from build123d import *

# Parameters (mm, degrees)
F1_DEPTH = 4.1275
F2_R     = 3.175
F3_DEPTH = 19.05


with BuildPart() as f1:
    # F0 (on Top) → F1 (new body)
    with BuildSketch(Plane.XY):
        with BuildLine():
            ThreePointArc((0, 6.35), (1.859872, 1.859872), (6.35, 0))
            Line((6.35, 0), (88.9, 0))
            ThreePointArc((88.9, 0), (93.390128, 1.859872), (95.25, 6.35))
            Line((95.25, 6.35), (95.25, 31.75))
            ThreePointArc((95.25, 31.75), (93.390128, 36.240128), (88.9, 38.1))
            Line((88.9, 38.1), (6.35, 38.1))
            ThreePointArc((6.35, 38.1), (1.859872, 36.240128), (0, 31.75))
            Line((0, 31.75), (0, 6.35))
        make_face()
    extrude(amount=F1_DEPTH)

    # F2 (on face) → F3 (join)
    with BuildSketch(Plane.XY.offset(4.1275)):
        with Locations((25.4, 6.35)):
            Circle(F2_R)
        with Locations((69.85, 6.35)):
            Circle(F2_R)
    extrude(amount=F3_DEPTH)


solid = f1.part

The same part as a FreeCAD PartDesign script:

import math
import FreeCAD as App
import Part
import Sketcher

V = App.Vector
Q = App.Units.Quantity

doc = App.newDocument("Part")
params = doc.addObject("Spreadsheet::Sheet", "Params")
for row, (alias, value) in enumerate([
    ("sketch1_height", "1 in"),
    ("sketch1_radius", "0.25 in"),
    ("sketch1_width", "3.25 in"),
    ("pad1_length", "0.1625 in"),
    ("sketch2_diameter", "0.25 in"),
    ("pad2_length", "0.75 in"),
], start=1):
    params.set(f"A{row}", alias)
    params.set(f"B{row}", "=" + value)
    params.setAlias(f"B{row}", alias)

body = doc.addObject("PartDesign::Body", "Body")

# Sketch on XY plane
sketch1 = body.newObject("Sketcher::SketchObject", "Sketch")
sketch1.AttachmentSupport = (doc.getObject("XY_Plane"), [""])
sketch1.MapMode = "FlatFace"
sketch1.addGeometry(Part.ArcOfCircle(Part.Circle(V(6, 6, 0), V(0, 0, 1), 6), math.radians(-180), math.radians(-90)), False)
sketch1.addGeometry(Part.LineSegment(V(6, 0, 0), V(89, 0, 0)), False)
sketch1.addGeometry(Part.ArcOfCircle(Part.Circle(V(89, 6, 0), V(0, 0, 1), 6), math.radians(-90), math.radians(0)), False)
sketch1.addGeometry(Part.LineSegment(V(95, 6, 0), V(95, 32, 0)), False)
sketch1.addGeometry(Part.ArcOfCircle(Part.Circle(V(89, 32, 0), V(0, 0, 1), 6), math.radians(0), math.radians(90)), False)
sketch1.addGeometry(Part.LineSegment(V(89, 38, 0), V(6, 38, 0)), False)
sketch1.addGeometry(Part.ArcOfCircle(Part.Circle(V(6, 32, 0), V(0, 0, 1), 6), math.radians(90), math.radians(180)), False)
sketch1.addGeometry(Part.LineSegment(V(0, 32, 0), V(0, 6, 0)), False)
sketch1.addConstraint(Sketcher.Constraint("Tangent", 0, 2, 1, 1))
sketch1.addConstraint(Sketcher.Constraint("Tangent", 1, 2, 2, 1))
sketch1.addConstraint(Sketcher.Constraint("Tangent", 2, 2, 3, 1))
sketch1.addConstraint(Sketcher.Constraint("Tangent", 3, 2, 4, 1))
sketch1.addConstraint(Sketcher.Constraint("Tangent", 4, 2, 5, 1))
sketch1.addConstraint(Sketcher.Constraint("Tangent", 5, 2, 6, 1))
sketch1.addConstraint(Sketcher.Constraint("Tangent", 6, 2, 7, 1))
sketch1.addConstraint(Sketcher.Constraint("Tangent", 7, 2, 0, 1))
sketch1.addConstraint(Sketcher.Constraint("Horizontal", 1))
sketch1.addConstraint(Sketcher.Constraint("Vertical", 3))
sketch1.addConstraint(Sketcher.Constraint("Horizontal", 5))
sketch1.addConstraint(Sketcher.Constraint("Vertical", 7))
sketch1.addConstraint(Sketcher.Constraint("Equal", 0, 2))
sketch1.addConstraint(Sketcher.Constraint("Equal", 2, 4))
sketch1.addConstraint(Sketcher.Constraint("Equal", 4, 6))
sketch1.addConstraint(Sketcher.Constraint("PointOnObject", 0, 2, -1))
sketch1.addConstraint(Sketcher.Constraint("PointOnObject", 6, 2, -2))
sketch1.addConstraint(Sketcher.Constraint("DistanceY", 3, 1, 3, 2, Q("1 in")))
sketch1.addConstraint(Sketcher.Constraint("Radius", 0, Q("0.25 in")))
sketch1.addConstraint(Sketcher.Constraint("DistanceX", 1, 1, 1, 2, Q("3.25 in")))
sketch1.setExpression("Constraints[17]", "Params.sketch1_height")
sketch1.setExpression("Constraints[18]", "Params.sketch1_radius")
sketch1.setExpression("Constraints[19]", "Params.sketch1_width")
pad1 = body.newObject("PartDesign::Pad", "Pad")
pad1.Profile = sketch1
pad1.setExpression("Length", "Params.pad1_length")

# Sketch on XY plane
sketch2 = body.newObject("Sketcher::SketchObject", "Sketch001")
sketch2.AttachmentSupport = (doc.getObject("XY_Plane"), [""])
sketch2.MapMode = "FlatFace"
sketch2.AttachmentOffset = App.Placement(V(0, 0, 0.1625 * 25.4), App.Rotation())
sketch2.addGeometry(Part.Circle(V(25.4, 6.3, 0), V(0, 0, 1), 3.2), False)
sketch2.addGeometry(Part.Circle(V(69.8, 6.3, 0), V(0, 0, 1), 3.2), False)
sketch2.addConstraint(Sketcher.Constraint("Equal", 0, 1))
sketch2.addConstraint(Sketcher.Constraint("Horizontal", 0, 3, 1, 3))
sketch2.addConstraint(Sketcher.Constraint("Diameter", 0, Q("0.25 in")))
sketch2.addConstraint(Sketcher.Constraint("DistanceX", -1, 1, 0, 3, Q("1 in")))
sketch2.addConstraint(Sketcher.Constraint("DistanceY", -1, 1, 0, 3, Q("0.25 in")))
sketch2.addConstraint(Sketcher.Constraint("DistanceX", -1, 1, 1, 3, Q("2.75 in")))
sketch2.setExpression("Constraints[2]", "Params.sketch2_diameter")
pad2 = body.newObject("PartDesign::Pad", "Pad001")
pad2.Profile = sketch2
pad2.setExpression("Length", "Params.pad2_length")

doc.recompute()
